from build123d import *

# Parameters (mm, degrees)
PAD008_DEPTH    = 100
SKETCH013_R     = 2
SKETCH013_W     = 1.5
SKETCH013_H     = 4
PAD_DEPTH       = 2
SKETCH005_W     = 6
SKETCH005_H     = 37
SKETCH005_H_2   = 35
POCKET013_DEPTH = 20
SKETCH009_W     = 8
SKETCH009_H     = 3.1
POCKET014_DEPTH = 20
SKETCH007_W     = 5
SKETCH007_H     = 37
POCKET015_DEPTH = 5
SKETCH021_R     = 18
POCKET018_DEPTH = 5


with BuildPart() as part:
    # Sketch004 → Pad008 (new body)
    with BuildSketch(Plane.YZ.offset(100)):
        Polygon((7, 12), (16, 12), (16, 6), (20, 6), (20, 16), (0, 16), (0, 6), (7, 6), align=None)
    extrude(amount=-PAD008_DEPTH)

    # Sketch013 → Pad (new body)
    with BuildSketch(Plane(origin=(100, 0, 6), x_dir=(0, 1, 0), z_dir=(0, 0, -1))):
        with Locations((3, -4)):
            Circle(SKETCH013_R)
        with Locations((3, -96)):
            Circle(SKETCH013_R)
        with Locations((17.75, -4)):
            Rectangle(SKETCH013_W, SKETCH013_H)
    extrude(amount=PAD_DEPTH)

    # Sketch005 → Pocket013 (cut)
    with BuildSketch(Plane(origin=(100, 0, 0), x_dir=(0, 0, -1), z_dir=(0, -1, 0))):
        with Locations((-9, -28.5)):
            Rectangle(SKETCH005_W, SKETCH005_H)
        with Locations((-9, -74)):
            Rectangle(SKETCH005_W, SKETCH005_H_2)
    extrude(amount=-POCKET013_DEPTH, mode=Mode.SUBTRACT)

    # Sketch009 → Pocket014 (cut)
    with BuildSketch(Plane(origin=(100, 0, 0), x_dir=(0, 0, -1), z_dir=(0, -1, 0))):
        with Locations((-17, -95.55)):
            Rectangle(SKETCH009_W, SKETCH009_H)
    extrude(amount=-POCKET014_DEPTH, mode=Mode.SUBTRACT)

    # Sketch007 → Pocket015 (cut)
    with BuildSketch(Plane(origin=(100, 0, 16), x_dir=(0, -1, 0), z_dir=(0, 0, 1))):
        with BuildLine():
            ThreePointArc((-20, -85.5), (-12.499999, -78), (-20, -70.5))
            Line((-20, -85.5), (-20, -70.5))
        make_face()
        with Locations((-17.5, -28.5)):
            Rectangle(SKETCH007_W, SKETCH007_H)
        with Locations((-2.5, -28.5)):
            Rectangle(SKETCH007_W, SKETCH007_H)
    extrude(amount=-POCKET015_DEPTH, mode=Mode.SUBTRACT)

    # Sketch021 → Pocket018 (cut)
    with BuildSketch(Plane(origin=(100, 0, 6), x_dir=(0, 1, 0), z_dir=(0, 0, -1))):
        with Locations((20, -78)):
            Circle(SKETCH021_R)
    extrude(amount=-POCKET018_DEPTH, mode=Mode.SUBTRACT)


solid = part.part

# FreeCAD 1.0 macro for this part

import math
import FreeCAD as App
import Part
import Sketcher
from FreeCAD import Vector
Q = App.Units.Quantity

doc = App.newDocument("Part")
params = doc.addObject("Spreadsheet::Sheet", "Params")
for row, (alias, value) in enumerate([
    ("sketch1_width", "9 mm"),
    ("sketch1_width2", "4 mm"),
    ("sketch1_width3", "20 mm"),
    ("sketch1_height", "6 mm"),
    ("sketch1_height2", "10 mm"),
    ("pad1_length", "100 mm"),
    ("sketch2_diameter", "4 mm"),
    ("sketch2_width", "4 mm"),
    ("sketch2_height", "1.5 mm"),
    ("pad2_length", "2 mm"),
    ("sketch3_width", "37 mm"),
    ("sketch3_width2", "35 mm"),
    ("sketch3_height", "6 mm"),
    ("pocket1_length", "20 mm"),
    ("sketch4_height", "8 mm"),
    ("sketch4_width", "3.1 mm"),
    ("pocket2_length", "20 mm"),
    ("sketch5_radius", "7.5 mm"),
    ("sketch5_width", "37 mm"),
    ("sketch5_height", "5 mm"),
    ("pocket3_length", "5 mm"),
    ("sketch6_diameter", "36 mm"),
    ("pocket4_length", "5 mm"),
], start=1):
    params.set(f"A{row}", alias)
    params.set(f"B{row}", "=" + value)
    params.setAlias(f"B{row}", alias)

body = doc.addObject("PartDesign::Body", "Body")

# Sketch on YZ plane
sketch1 = body.newObject("Sketcher::SketchObject", "Sketch")
sketch1.AttachmentSupport = (doc.getObject("YZ_Plane"), [""])
sketch1.MapMode = "FlatFace"
sketch1.AttachmentOffset = App.Placement(Vector(0, 0, 100), App.Rotation())
sketch1.addGeometry([
    Part.LineSegment(Vector(7, 12, 0), Vector(16, 12, 0)),  # 0
    Part.LineSegment(Vector(16, 12, 0), Vector(16, 6, 0)),  # 1
    Part.LineSegment(Vector(16, 6, 0), Vector(20, 6, 0)),  # 2
    Part.LineSegment(Vector(20, 6, 0), Vector(20, 16, 0)),  # 3
    Part.LineSegment(Vector(20, 16, 0), Vector(0, 16, 0)),  # 4
    Part.LineSegment(Vector(0, 16, 0), Vector(0, 6, 0)),  # 5
    Part.LineSegment(Vector(0, 6, 0), Vector(7, 6, 0)),  # 6
    Part.LineSegment(Vector(7, 6, 0), Vector(7, 12, 0)),  # 7
], False)
sketch1.addConstraint([
    Sketcher.Constraint("Coincident", 0, 2, 1, 1),
    Sketcher.Constraint("Coincident", 1, 2, 2, 1),
    Sketcher.Constraint("Coincident", 2, 2, 3, 1),
    Sketcher.Constraint("Coincident", 3, 2, 4, 1),
    Sketcher.Constraint("Coincident", 4, 2, 5, 1),
    Sketcher.Constraint("Coincident", 5, 2, 6, 1),
    Sketcher.Constraint("Coincident", 6, 2, 7, 1),
    Sketcher.Constraint("Coincident", 7, 2, 0, 1),
    Sketcher.Constraint("Horizontal", 0),
    Sketcher.Constraint("Vertical", 1),
    Sketcher.Constraint("Horizontal", 2),
    Sketcher.Constraint("Vertical", 3),
    Sketcher.Constraint("Horizontal", 4),
    Sketcher.Constraint("Vertical", 5),
    Sketcher.Constraint("Horizontal", 6),
    Sketcher.Constraint("Vertical", 7),
    Sketcher.Constraint("PointOnObject", 4, 2, -2),
    Sketcher.Constraint("Horizontal", 2, 2, 5, 2),
    Sketcher.Constraint("DistanceX", 0, 1, 0, 2, Q("9 mm")),
    Sketcher.Constraint("DistanceX", 2, 1, 2, 2, Q("4 mm")),
    Sketcher.Constraint("DistanceX", 4, 2, 4, 1, Q("20 mm")),
    Sketcher.Constraint("DistanceY", 1, 2, 1, 1, Q("6 mm")),
    Sketcher.Constraint("DistanceY", 3, 1, 3, 2, Q("10 mm")),
    Sketcher.Constraint("DistanceY", -1, 1, 0, 2, Q("12 mm")),
])
sketch1.setExpression("Constraints[18]", "Params.sketch1_width")
sketch1.setExpression("Constraints[19]", "Params.sketch1_width2")
sketch1.setExpression("Constraints[20]", "Params.sketch1_width3")
sketch1.setExpression("Constraints[21]", "Params.sketch1_height")
sketch1.setExpression("Constraints[22]", "Params.sketch1_height2")
pad1 = body.newObject("PartDesign::Pad", "Pad")
pad1.Profile = sketch1
pad1.setExpression("Length", "Params.pad1_length")
pad1.Reversed = True

# Sketch on XY plane
sketch2 = body.newObject("Sketcher::SketchObject", "Sketch001")
sketch2.AttachmentSupport = (doc.getObject("XY_Plane"), [""])
sketch2.MapMode = "FlatFace"
sketch2.AttachmentOffset = App.Placement(Vector(0, 0, 6), App.Rotation())
sketch2.addGeometry([
    Part.Circle(Vector(96, 3, 0), Vector(0, 0, 1), 2),  # 0
    Part.Circle(Vector(4, 3, 0), Vector(0, 0, 1), 2),  # 1
    Part.LineSegment(Vector(98, 17, 0), Vector(94, 17, 0)),  # 2
    Part.LineSegment(Vector(94, 17, 0), Vector(94, 18.5, 0)),  # 3
    Part.LineSegment(Vector(94, 18.5, 0), Vector(98, 18.5, 0)),  # 4
    Part.LineSegment(Vector(98, 18.5, 0), Vector(98, 17, 0)),  # 5
], False)
sketch2.addConstraint([
    Sketcher.Constraint("Coincident", 2, 2, 3, 1),
    Sketcher.Constraint("Coincident", 3, 2, 4, 1),
    Sketcher.Constraint("Coincident", 4, 2, 5, 1),
    Sketcher.Constraint("Coincident", 5, 2, 2, 1),
    Sketcher.Constraint("Horizontal", 2),
    Sketcher.Constraint("Vertical", 3),
    Sketcher.Constraint("Horizontal", 4),
    Sketcher.Constraint("Vertical", 5),
    Sketcher.Constraint("Equal", 0, 1),
    Sketcher.Constraint("Horizontal", 0, 3, 1, 3),
    Sketcher.Constraint("Diameter", 0, Q("4 mm")),
    Sketcher.Constraint("DistanceX", 2, 2, 2, 1, Q("4 mm")),
    Sketcher.Constraint("DistanceY", 3, 1, 3, 2, Q("1.5 mm")),
    Sketcher.Constraint("DistanceX", -1, 1, 0, 3, Q("96 mm")),
    Sketcher.Constraint("DistanceY", -1, 1, 0, 3, Q("3 mm")),
    Sketcher.Constraint("DistanceX", -1, 1, 1, 3, Q("4 mm")),
    Sketcher.Constraint("DistanceX", -1, 1, 2, 2, Q("94 mm")),
    Sketcher.Constraint("DistanceY", -1, 1, 2, 2, Q("17 mm")),
])
sketch2.setExpression("Constraints[10]", "Params.sketch2_diameter")
sketch2.setExpression("Constraints[11]", "Params.sketch2_width")
sketch2.setExpression("Constraints[12]", "Params.sketch2_height")
pad2 = body.newObject("PartDesign::Pad", "Pad001")
pad2.Profile = sketch2
pad2.setExpression("Length", "Params.pad2_length")
pad2.Reversed = True

# Sketch on XZ plane
sketch3 = body.newObject("Sketcher::SketchObject", "Sketch002")
sketch3.AttachmentSupport = (doc.getObject("XZ_Plane"), [""])
sketch3.MapMode = "FlatFace"
sketch3.addGeometry([
    Part.LineSegment(Vector(90, 12, 0), Vector(53, 12, 0)),  # 0
    Part.LineSegment(Vector(53, 12, 0), Vector(53, 6, 0)),  # 1
    Part.LineSegment(Vector(53, 6, 0), Vector(90, 6, 0)),  # 2
    Part.LineSegment(Vector(90, 6, 0), Vector(90, 12, 0)),  # 3
    Part.LineSegment(Vector(43.5, 12, 0), Vector(8.5, 12, 0)),  # 4
    Part.LineSegment(Vector(8.5, 12, 0), Vector(8.5, 6, 0)),  # 5
    Part.LineSegment(Vector(8.5, 6, 0), Vector(43.5, 6, 0)),  # 6
    Part.LineSegment(Vector(43.5, 6, 0), Vector(43.5, 12, 0)),  # 7
], False)
sketch3.addConstraint([
    Sketcher.Constraint("Coincident", 0, 2, 1, 1),
    Sketcher.Constraint("Coincident", 1, 2, 2, 1),
    Sketcher.Constraint("Coincident", 2, 2, 3, 1),
    Sketcher.Constraint("Coincident", 3, 2, 0, 1),
    Sketcher.Constraint("Coincident", 4, 2, 5, 1),
    Sketcher.Constraint("Coincident", 5, 2, 6, 1),
    Sketcher.Constraint("Coincident", 6, 2, 7, 1),
    Sketcher.Constraint("Coincident", 7, 2, 4, 1),
    Sketcher.Constraint("Horizontal", 0),
    Sketcher.Constraint("Vertical", 1),
    Sketcher.Constraint("Horizontal", 2),
    Sketcher.Constraint("Vertical", 3),
    Sketcher.Constraint("Horizontal", 4),
    Sketcher.Constraint("Vertical", 5),
    Sketcher.Constraint("Horizontal", 6),
    Sketcher.Constraint("Vertical", 7),
    Sketcher.Constraint("Horizontal", 3, 2, 4, 2),
    Sketcher.Constraint("Horizontal", 2, 2, 5, 2),
    Sketcher.Constraint("DistanceX", 0, 2, 0, 1, Q("37 mm")),
    Sketcher.Constraint("DistanceX", 4, 2, 4, 1, Q("35 mm")),
    Sketcher.Constraint("DistanceY", 1, 2, 1, 1, Q("6 mm")),
    Sketcher.Constraint("DistanceX", -1, 1, 0, 2, Q("53 mm")),
    Sketcher.Constraint("DistanceY", -1, 1, 0, 2, Q("12 mm")),
    Sketcher.Constraint("DistanceX", -1, 1, 4, 2, Q("8.5 mm")),
])
sketch3.setExpression("Constraints[18]", "Params.sketch3_width")
sketch3.setExpression("Constraints[19]", "Params.sketch3_width2")
sketch3.setExpression("Constraints[20]", "Params.sketch3_height")
pocket1 = body.newObject("PartDesign::Pocket", "Pocket")
pocket1.Profile = sketch3
pocket1.setExpression("Length", "Params.pocket1_length")

# Sketch on XZ plane
sketch4 = body.newObject("Sketcher::SketchObject", "Sketch003")
sketch4.AttachmentSupport = (doc.getObject("XZ_Plane"), [""])
sketch4.MapMode = "FlatFace"
sketch4.addGeometry([
    Part.LineSegment(Vector(6, 21, 0), Vector(2.9, 21, 0)),
    Part.LineSegment(Vector(2.9, 21, 0), Vector(2.9, 13, 0)),
    Part.LineSegment(Vector(2.9, 13, 0), Vector(6, 13, 0)),
    Part.LineSegment(Vector(6, 13, 0), Vector(6, 21, 0)),
], False)
sketch4.addConstraint([
    Sketcher.Constraint("Coincident", 0, 2, 1, 1),
    Sketcher.Constraint("Coincident", 1, 2, 2, 1),
    Sketcher.Constraint("Coincident", 2, 2, 3, 1),
    Sketcher.Constraint("Coincident", 3, 2, 0, 1),
    Sketcher.Constraint("Horizontal", 0),
    Sketcher.Constraint("Vertical", 1),
    Sketcher.Constraint("Horizontal", 2),
    Sketcher.Constraint("Vertical", 3),
    Sketcher.Constraint("DistanceY", 1, 2, 1, 1, Q("8 mm")),
    Sketcher.Constraint("DistanceX", 0, 2, 0, 1, Q("3.1 mm")),
    Sketcher.Constraint("DistanceY", -1, 1, 0, 2, Q("21 mm")),
    Sketcher.Constraint("DistanceX", -1, 1, 2, 2, Q("6 mm")),
])
sketch4.setExpression("Constraints[8]", "Params.sketch4_height")
sketch4.setExpression("Constraints[9]", "Params.sketch4_width")
pocket2 = body.newObject("PartDesign::Pocket", "Pocket001")
pocket2.Profile = sketch4
pocket2.setExpression("Length", "Params.pocket2_length")

# Sketch on XY plane
sketch5 = body.newObject("Sketcher::SketchObject", "Sketch004")
sketch5.AttachmentSupport = (doc.getObject("XY_Plane"), [""])
sketch5.MapMode = "FlatFace"
sketch5.AttachmentOffset = App.Placement(Vector(0, 0, 16), App.Rotation())
sketch5.addGeometry([
    Part.ArcOfCircle(Part.Circle(Vector(22, 19.999999, 0), Vector(0, 0, 1), 7.5), math.radians(179.999992), math.radians(360.000008)),  # 0
    Part.LineSegment(Vector(29.5, 20, 0), Vector(14.5, 20, 0)),  # 1
    Part.LineSegment(Vector(90, 20, 0), Vector(53, 20, 0)),  # 2
    Part.LineSegment(Vector(53, 20, 0), Vector(53, 15, 0)),  # 3
    Part.LineSegment(Vector(53, 15, 0), Vector(90, 15, 0)),  # 4
    Part.LineSegment(Vector(90, 15, 0), Vector(90, 20, 0)),  # 5
    Part.LineSegment(Vector(90, 5, 0), Vector(53, 5, 0)),  # 6
    Part.LineSegment(Vector(53, 5, 0), Vector(53, 0, 0)),  # 7
    Part.LineSegment(Vector(53, 0, 0), Vector(90, 0, 0)),  # 8
    Part.LineSegment(Vector(90, 0, 0), Vector(90, 5, 0)),  # 9
], False)
sketch5.addConstraint([
    Sketcher.Constraint("Coincident", 0, 1, 1, 2),
    Sketcher.Constraint("Coincident", 1, 1, 0, 2),
    Sketcher.Constraint("Coincident", 2, 2, 3, 1),
    Sketcher.Constraint("Coincident", 3, 2, 4, 1),
    Sketcher.Constraint("Coincident", 4, 2, 5, 1),
    Sketcher.Constraint("Coincident", 5, 2, 2, 1),
    Sketcher.Constraint("Coincident", 6, 2, 7, 1),
    Sketcher.Constraint("Coincident", 7, 2, 8, 1),
    Sketcher.Constraint("Coincident", 8, 2, 9, 1),
    Sketcher.Constraint("Coincident", 9, 2, 6, 1),
    Sketcher.Constraint("Horizontal", 1),
    Sketcher.Constraint("Horizontal", 2),
    Sketcher.Constraint("Vertical", 3),
    Sketcher.Constraint("Horizontal", 4),
    Sketcher.Constraint("Vertical", 5),
    Sketcher.Constraint("Horizontal", 6),
    Sketcher.Constraint("Vertical", 7),
    Sketcher.Constraint("Horizontal", 8),
    Sketcher.Constraint("Vertical", 9),
    Sketcher.Constraint("PointOnObject", 7, 2, -1),
    Sketcher.Constraint("Horizontal", 1, 1, 2, 2),
    Sketcher.Constraint("Vertical", 3, 2, 6, 2),
    Sketcher.Constraint("Vertical", 5, 2, 8, 2),
    Sketcher.Constraint("Equal", 5, 7),
    Sketcher.Constraint("Radius", 0, Q("7.5 mm")),
    Sketcher.Constraint("DistanceX", 2, 2, 2, 1, Q("37 mm")),
    Sketcher.Constraint("DistanceY", 3, 2, 3, 1, Q("5 mm")),
    Sketcher.Constraint("DistanceX", -1, 1, 0, 3, Q("22 mm")),
    Sketcher.Constraint("DistanceY", -1, 1, 0, 3, Q("19.999999 mm")),
    Sketcher.Constraint("DistanceY", -1, 1, 0, 1, Q("20 mm")),
    Sketcher.Constraint("DistanceX", -1, 1, 2, 2, Q("53 mm")),
])
sketch5.setExpression("Constraints[24]", "Params.sketch5_radius")
sketch5.setExpression("Constraints[25]", "Params.sketch5_width")
sketch5.setExpression("Constraints[26]", "Params.sketch5_height")
pocket3 = body.newObject("PartDesign::Pocket", "Pocket002")
pocket3.Profile = sketch5
pocket3.setExpression("Length", "Params.pocket3_length")

# Sketch on XY plane
sketch6 = body.newObject("Sketcher::SketchObject", "Sketch005")
sketch6.AttachmentSupport = (doc.getObject("XY_Plane"), [""])
sketch6.MapMode = "FlatFace"
sketch6.AttachmentOffset = App.Placement(Vector(0, 0, 6), App.Rotation())
sketch6.addGeometry(Part.Circle(Vector(22, 20, 0), Vector(0, 0, 1), 18), False)
sketch6.addConstraint([
    Sketcher.Constraint("Diameter", 0, Q("36 mm")),
    Sketcher.Constraint("DistanceX", -1, 1, 0, 3, Q("22 mm")),
    Sketcher.Constraint("DistanceY", -1, 1, 0, 3, Q("20 mm")),
])
sketch6.setExpression("Constraints[0]", "Params.sketch6_diameter")
pocket4 = body.newObject("PartDesign::Pocket", "Pocket003")
pocket4.Profile = sketch6
pocket4.setExpression("Length", "Params.pocket4_length")
pocket4.Reversed = True

doc.recompute()
